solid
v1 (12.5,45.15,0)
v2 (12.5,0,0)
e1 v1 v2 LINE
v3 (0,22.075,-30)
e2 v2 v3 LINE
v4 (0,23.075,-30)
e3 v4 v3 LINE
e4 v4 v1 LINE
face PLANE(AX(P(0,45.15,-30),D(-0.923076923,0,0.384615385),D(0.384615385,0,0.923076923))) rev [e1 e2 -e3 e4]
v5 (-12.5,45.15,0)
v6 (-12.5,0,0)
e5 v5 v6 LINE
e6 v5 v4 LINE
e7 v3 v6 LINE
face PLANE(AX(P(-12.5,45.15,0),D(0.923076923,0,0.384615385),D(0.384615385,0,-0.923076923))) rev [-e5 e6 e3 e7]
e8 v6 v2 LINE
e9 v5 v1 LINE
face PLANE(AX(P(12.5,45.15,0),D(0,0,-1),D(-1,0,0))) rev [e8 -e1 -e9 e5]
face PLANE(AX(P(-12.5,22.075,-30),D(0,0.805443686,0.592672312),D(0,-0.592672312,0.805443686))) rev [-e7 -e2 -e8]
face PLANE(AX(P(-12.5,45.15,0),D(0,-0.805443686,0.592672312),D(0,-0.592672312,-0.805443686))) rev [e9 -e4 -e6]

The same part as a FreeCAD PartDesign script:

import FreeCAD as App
import Part
import Sketcher
from FreeCAD import Vector
Q = App.Units.Quantity


def add_polygon(sketch, points):
    """Adds a closed chain of lines whose ends are joined by coincident constraints."""
    first, n = sketch.GeometryCount, len(points)
    for a, b in zip(points, points[1:] + points[:1]):
        sketch.addGeometry(Part.LineSegment(App.Vector(*a, 0), App.Vector(*b, 0)), False)
    for i in range(n):
        sketch.addConstraint(Sketcher.Constraint("Coincident", first + i, 2, first + (i + 1) % n, 1))

doc = App.newDocument("Part")
body = doc.addObject("PartDesign::Body", "Body")

sketch1 = body.newObject("Sketcher::SketchObject", "Sketch")
sketch1.AttachmentSupport = (doc.getObject("XZ_Plane"), [""])
sketch1.MapMode = "FlatFace"
add_polygon(sketch1, [(0, -30), (-12, 0), (12, 0)])
sketch1.addConstraint(Sketcher.Constraint("Horizontal", 1))
sketch1.addConstraint(Sketcher.Constraint("Symmetric", 0, 2, 1, 2, -1, 1))
sketch1.addConstraint(Sketcher.Constraint("PointOnObject", 2, 2, -2))
sketch1.addConstraint(Sketcher.Constraint("DistanceX", 1, 1, 1, 2, Q("25 mm")))
sketch1.addConstraint(Sketcher.Constraint("DistanceY", 2, 2, -1, 1, Q("30 mm")))
pad1 = body.newObject("PartDesign::Pad", "Pad")
pad1.Profile = sketch1
pad1.Length = 45.15
pad1.Reversed = True

sketch2 = body.newObject("Sketcher::SketchObject", "Sketch001")
sketch2.AttachmentSupport = (doc.getObject("YZ_Plane"), [""])
sketch2.MapMode = "FlatFace"
add_polygon(sketch2, [(45, 0), (23, -30), (45, -30)])
add_polygon(sketch2, [(0, 0), (0, -30), (22, -30)])
sketch2.addConstraint(Sketcher.Constraint("Horizontal", 1))
sketch2.addConstraint(Sketcher.Constraint("Vertical", 2))
sketch2.addConstraint(Sketcher.Constraint("Vertical", 3))
sketch2.addConstraint(Sketcher.Constraint("Horizontal", 4))
sketch2.addConstraint(Sketcher.Constraint("Coincident", 5, 2, -1, 1))
sketch2.addConstraint(Sketcher.Constraint("PointOnObject", 2, 2, -1))
sketch2.addConstraint(Sketcher.Constraint("Horizontal", 1, 2, 3, 2))
sketch2.addConstraint(Sketcher.Constraint("Equal", 1, 4))
sketch2.addConstraint(Sketcher.Constraint("DistanceY", 2, 1, 2, 2, Q("30 mm")))
sketch2.addConstraint(Sketcher.Constraint("DistanceX", 4, 2, 0, 2, Q("1 mm")))
sketch2.addConstraint(Sketcher.Constraint("DistanceX", 1, 1, 1, 2, Q("22.075 mm")))
pocket1 = body.newObject("PartDesign::Pocket", "Pocket")
pocket1.Profile = sketch2
pocket1.Type = "ThroughAll"
pocket1.Midplane = True

doc.recompute()
